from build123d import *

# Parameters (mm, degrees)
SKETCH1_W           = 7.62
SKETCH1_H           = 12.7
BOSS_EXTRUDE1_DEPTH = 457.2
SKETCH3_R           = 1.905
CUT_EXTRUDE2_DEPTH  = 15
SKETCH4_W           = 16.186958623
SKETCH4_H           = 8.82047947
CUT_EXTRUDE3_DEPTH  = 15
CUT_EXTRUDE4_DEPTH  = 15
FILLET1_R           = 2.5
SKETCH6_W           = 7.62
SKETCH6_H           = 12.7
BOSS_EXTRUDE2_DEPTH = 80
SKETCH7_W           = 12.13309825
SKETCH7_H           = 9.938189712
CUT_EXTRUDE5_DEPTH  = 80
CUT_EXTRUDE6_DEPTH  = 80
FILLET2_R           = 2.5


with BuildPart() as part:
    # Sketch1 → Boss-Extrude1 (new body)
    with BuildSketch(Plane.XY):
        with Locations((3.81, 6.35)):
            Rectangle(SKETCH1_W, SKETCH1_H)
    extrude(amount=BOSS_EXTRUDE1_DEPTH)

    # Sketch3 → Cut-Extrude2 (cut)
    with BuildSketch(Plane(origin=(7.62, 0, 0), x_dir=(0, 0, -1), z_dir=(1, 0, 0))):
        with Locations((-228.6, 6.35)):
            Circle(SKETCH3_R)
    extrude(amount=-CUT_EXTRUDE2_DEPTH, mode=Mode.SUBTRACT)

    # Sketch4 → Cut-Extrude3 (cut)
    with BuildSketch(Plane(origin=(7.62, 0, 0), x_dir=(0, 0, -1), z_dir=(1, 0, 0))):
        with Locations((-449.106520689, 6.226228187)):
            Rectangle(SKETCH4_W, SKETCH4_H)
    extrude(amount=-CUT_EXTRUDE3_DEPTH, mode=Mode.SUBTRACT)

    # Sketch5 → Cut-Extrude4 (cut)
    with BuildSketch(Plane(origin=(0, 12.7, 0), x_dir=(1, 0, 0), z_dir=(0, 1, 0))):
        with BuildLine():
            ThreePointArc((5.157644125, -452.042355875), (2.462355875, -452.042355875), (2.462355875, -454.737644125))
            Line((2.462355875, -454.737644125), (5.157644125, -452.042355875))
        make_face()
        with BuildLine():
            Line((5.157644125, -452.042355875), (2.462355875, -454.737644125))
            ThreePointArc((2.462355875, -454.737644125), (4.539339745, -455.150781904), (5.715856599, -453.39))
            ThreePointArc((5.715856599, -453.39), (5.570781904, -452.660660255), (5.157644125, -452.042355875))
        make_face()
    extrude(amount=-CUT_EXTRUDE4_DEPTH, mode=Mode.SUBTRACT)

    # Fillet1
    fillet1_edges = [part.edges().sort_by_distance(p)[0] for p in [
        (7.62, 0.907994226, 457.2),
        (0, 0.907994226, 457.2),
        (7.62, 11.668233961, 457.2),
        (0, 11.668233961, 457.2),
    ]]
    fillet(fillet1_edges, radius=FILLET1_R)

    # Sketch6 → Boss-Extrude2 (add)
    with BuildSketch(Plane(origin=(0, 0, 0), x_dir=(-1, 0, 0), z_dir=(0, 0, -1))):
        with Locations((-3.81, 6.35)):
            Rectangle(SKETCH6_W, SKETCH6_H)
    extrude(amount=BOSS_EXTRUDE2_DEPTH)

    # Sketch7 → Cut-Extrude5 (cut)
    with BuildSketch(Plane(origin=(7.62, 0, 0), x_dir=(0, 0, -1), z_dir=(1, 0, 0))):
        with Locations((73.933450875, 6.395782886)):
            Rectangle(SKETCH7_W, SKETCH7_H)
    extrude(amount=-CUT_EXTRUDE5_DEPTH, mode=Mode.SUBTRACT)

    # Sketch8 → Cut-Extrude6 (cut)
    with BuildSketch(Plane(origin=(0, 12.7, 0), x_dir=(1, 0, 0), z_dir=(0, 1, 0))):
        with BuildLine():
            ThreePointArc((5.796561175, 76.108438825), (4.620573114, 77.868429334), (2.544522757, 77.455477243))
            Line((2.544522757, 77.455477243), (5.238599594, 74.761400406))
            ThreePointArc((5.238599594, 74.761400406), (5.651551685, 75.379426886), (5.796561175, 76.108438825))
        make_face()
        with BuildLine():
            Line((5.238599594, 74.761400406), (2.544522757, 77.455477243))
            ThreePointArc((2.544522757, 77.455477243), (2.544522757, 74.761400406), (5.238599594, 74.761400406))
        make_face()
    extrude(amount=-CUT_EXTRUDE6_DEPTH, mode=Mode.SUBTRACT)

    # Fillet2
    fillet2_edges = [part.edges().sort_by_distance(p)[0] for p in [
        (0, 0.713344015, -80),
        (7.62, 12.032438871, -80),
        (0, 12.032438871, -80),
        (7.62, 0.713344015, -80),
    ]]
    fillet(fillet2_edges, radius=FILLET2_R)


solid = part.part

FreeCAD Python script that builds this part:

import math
import FreeCAD as App
import Part
import Sketcher
from FreeCAD import Vector
Q = App.Units.Quantity


def edges_at(feature, points):
    """Names of the edges that pass closest to the given points."""
    edges = feature.Shape.Edges
    near = lambda p: min(range(len(edges)), key=lambda i: edges[i].distToShape(Part.Vertex(*p))[0])
    return sorted({f"Edge{near(p) + 1}" for p in points})

doc = App.newDocument("Part")
body = doc.addObject("PartDesign::Body", "Body")

# Sketch on XY plane
sketch1 = body.newObject("Sketcher::SketchObject", "Sketch")
sketch1.AttachmentSupport = (doc.getObject("XY_Plane"), [""])
sketch1.MapMode = "FlatFace"
sketch1.addGeometry([
    Part.LineSegment(Vector(0, 13, 0), Vector(0, 0, 0)),
    Part.LineSegment(Vector(0, 0, 0), Vector(8, 0, 0)),
    Part.LineSegment(Vector(8, 0, 0), Vector(8, 13, 0)),
    Part.LineSegment(Vector(8, 13, 0), Vector(0, 13, 0)),
], False)
sketch1.addConstraint([
    Sketcher.Constraint("Coincident", 0, 2, 1, 1),
    Sketcher.Constraint("Coincident", 1, 2, 2, 1),
    Sketcher.Constraint("Coincident", 2, 2, 3, 1),
    Sketcher.Constraint("Coincident", 3, 2, 0, 1),
    Sketcher.Constraint("Vertical", 0),
    Sketcher.Constraint("Horizontal", 1),
    Sketcher.Constraint("Vertical", 2),
    Sketcher.Constraint("Horizontal", 3),
    Sketcher.Constraint("Coincident", 0, 2, -1, 1),
    Sketcher.Constraint("DistanceX", 1, 1, 1, 2, Q("0.3 in")),
    Sketcher.Constraint("DistanceY", 0, 2, 0, 1, Q("0.5 in")),
])
pad1 = body.newObject("PartDesign::Pad", "Pad")
pad1.Profile = sketch1
pad1.Length = Q("18 in")

# Sketch on YZ plane
sketch2 = body.newObject("Sketcher::SketchObject", "Sketch001")
sketch2.AttachmentSupport = (doc.getObject("YZ_Plane"), [""])
sketch2.MapMode = "FlatFace"
sketch2.AttachmentOffset = App.Placement(Vector(0, 0, 0.3 * 25.4), App.Rotation())
sketch2.addGeometry(Part.Circle(Vector(6.3, 228.6, 0), Vector(0, 0, 1), 1.9), False)
sketch2.addConstraint([
    Sketcher.Constraint("Diameter", 0, Q("0.15 in")),
    Sketcher.Constraint("DistanceY", -1, 1, 0, 3, Q("9 in")),
    Sketcher.Constraint("DistanceX", -1, 1, 0, 3, Q("0.25 in")),
])
pocket1 = body.newObject("PartDesign::Pocket", "Pocket")
pocket1.Profile = sketch2
pocket1.Length = 15

# Sketch on YZ plane
sketch3 = body.newObject("Sketcher::SketchObject", "Sketch002")
sketch3.AttachmentSupport = (doc.getObject("YZ_Plane"), [""])
sketch3.MapMode = "FlatFace"
sketch3.AttachmentOffset = App.Placement(Vector(0, 0, 0.3 * 25.4), App.Rotation())
sketch3.addGeometry([
    Part.LineSegment(Vector(11, 457, 0), Vector(2, 457, 0)),
    Part.LineSegment(Vector(2, 457, 0), Vector(2, 441, 0)),
    Part.LineSegment(Vector(2, 441, 0), Vector(11, 441, 0)),
    Part.LineSegment(Vector(11, 441, 0), Vector(11, 457, 0)),
], False)
sketch3.addConstraint([
    Sketcher.Constraint("Coincident", 0, 2, 1, 1),
    Sketcher.Constraint("Coincident", 1, 2, 2, 1),
    Sketcher.Constraint("Coincident", 2, 2, 3, 1),
    Sketcher.Constraint("Coincident", 3, 2, 0, 1),
    Sketcher.Constraint("Horizontal", 0),
    Sketcher.Constraint("Vertical", 1),
    Sketcher.Constraint("Horizontal", 2),
    Sketcher.Constraint("Vertical", 3),
    Sketcher.Constraint("DistanceY", -1, 1, 0, 2, Q("18 in")),
    Sketcher.Constraint("DistanceX", 0, 2, 0, 1, 8.820479),
    Sketcher.Constraint("DistanceY", 1, 2, 1, 1, 16.186959),
    Sketcher.Constraint("DistanceX", -1, 1, 0, 2, 1.815988),
])
pocket2 = body.newObject("PartDesign::Pocket", "Pocket001")
pocket2.Profile = sketch3
pocket2.Length = 15

# Sketch on XZ plane
sketch4 = body.newObject("Sketcher::SketchObject", "Sketch003")
sketch4.AttachmentSupport = (doc.getObject("XZ_Plane"), [""])
sketch4.MapMode = "FlatFace"
sketch4.AttachmentOffset = App.Placement(Vector(0, 0, -0.5 * 25.4), App.Rotation())
sketch4.addGeometry([
    Part.ArcOfCircle(Part.Circle(Vector(3.8, 453.4, 0), Vector(0, 0, 1), 1.9), math.radians(135), math.radians(315)),
    Part.ArcOfCircle(Part.Circle(Vector(3.8, 453.4, 0), Vector(0, 0, 1), 1.9), math.radians(0), math.radians(135)),
    Part.ArcOfCircle(Part.Circle(Vector(3.8, 453.4, 0), Vector(0, 0, 1), 1.9), math.radians(-45), math.radians(0)),
], False)
sketch4.addConstraint([
    Sketcher.Constraint("Tangent", 0, 1, 1, 2),
    Sketcher.Constraint("Tangent", 1, 1, 2, 2),
    Sketcher.Constraint("Tangent", 2, 1, 0, 2),
    Sketcher.Constraint("Horizontal", 2, 3, 1, 1),
    Sketcher.Constraint("DistanceX", -1, 1, 0, 3, Q("0.15 in")),
    Sketcher.Constraint("DistanceY", -1, 1, 0, 3, Q("17.85 in")),
    Sketcher.Constraint("Radius", 0, 1.905857),
    Sketcher.Constraint("DistanceX", 0, 1, 1, 1, 3.253501),
    Sketcher.Constraint("DistanceX", 0, 1, 2, 1, 2.695288),
])
pocket3 = body.newObject("PartDesign::Pocket", "Pocket002")
pocket3.Profile = sketch4
pocket3.Length = 15
pocket3.Reversed = True
doc.recompute()

fillet = body.newObject("PartDesign::Fillet", "Fillet")
fillet.Base = (pocket3, edges_at(pocket3, [
    (7.62, 0.908, 457.2),
    (0, 0.908, 457.2),
    (7.62, 11.668, 457.2),
    (0, 11.668, 457.2),
]))
fillet.Radius = 2.5

# Sketch on XY plane
sketch5 = body.newObject("Sketcher::SketchObject", "Sketch004")
sketch5.AttachmentSupport = (doc.getObject("XY_Plane"), [""])
sketch5.MapMode = "FlatFace"
sketch5.addGeometry([
    Part.LineSegment(Vector(8, 13, 0), Vector(8, 0, 0)),
    Part.LineSegment(Vector(8, 0, 0), Vector(0, 0, 0)),
    Part.LineSegment(Vector(0, 0, 0), Vector(0, 13, 0)),
    Part.LineSegment(Vector(0, 13, 0), Vector(8, 13, 0)),
], False)
sketch5.addConstraint([
    Sketcher.Constraint("Coincident", 0, 2, 1, 1),
    Sketcher.Constraint("Coincident", 1, 2, 2, 1),
    Sketcher.Constraint("Coincident", 2, 2, 3, 1),
    Sketcher.Constraint("Coincident", 3, 2, 0, 1),
    Sketcher.Constraint("Vertical", 0),
    Sketcher.Constraint("Horizontal", 1),
    Sketcher.Constraint("Vertical", 2),
    Sketcher.Constraint("Horizontal", 3),
    Sketcher.Constraint("Coincident", 1, 2, -1, 1),
    Sketcher.Constraint("DistanceX", 1, 2, 1, 1, Q("0.3 in")),
    Sketcher.Constraint("DistanceY", 0, 2, 0, 1, Q("0.5 in")),
])
pad2 = body.newObject("PartDesign::Pad", "Pad001")
pad2.Profile = sketch5
pad2.Length = 80
pad2.Reversed = True

# Sketch on YZ plane
sketch6 = body.newObject("Sketcher::SketchObject", "Sketch005")
sketch6.AttachmentSupport = (doc.getObject("YZ_Plane"), [""])
sketch6.MapMode = "FlatFace"
sketch6.AttachmentOffset = App.Placement(Vector(0, 0, 0.3 * 25.4), App.Rotation())
sketch6.addGeometry([
    Part.LineSegment(Vector(11, -68, 0), Vector(1, -68, 0)),
    Part.LineSegment(Vector(1, -68, 0), Vector(1, -80, 0)),
    Part.LineSegment(Vector(1, -80, 0), Vector(11, -80, 0)),
    Part.LineSegment(Vector(11, -80, 0), Vector(11, -68, 0)),
], False)
sketch6.addConstraint([
    Sketcher.Constraint("Coincident", 0, 2, 1, 1),
    Sketcher.Constraint("Coincident", 1, 2, 2, 1),
    Sketcher.Constraint("Coincident", 2, 2, 3, 1),
    Sketcher.Constraint("Coincident", 3, 2, 0, 1),
    Sketcher.Constraint("Horizontal", 0),
    Sketcher.Constraint("Vertical", 1),
    Sketcher.Constraint("Horizontal", 2),
    Sketcher.Constraint("Vertical", 3),
    Sketcher.Constraint("DistanceY", 1, 2, 1, 1, 12.133098),
    Sketcher.Constraint("DistanceX", 0, 2, 0, 1, 9.93819),
    Sketcher.Constraint("DistanceY", 0, 2, -1, 1, 67.866902),
    Sketcher.Constraint("DistanceX", -1, 1, 0, 2, 1.426688),
])
pocket4 = body.newObject("PartDesign::Pocket", "Pocket003")
pocket4.Profile = sketch6
pocket4.Length = 80

# Sketch on XZ plane
sketch7 = body.newObject("Sketcher::SketchObject", "Sketch006")
sketch7.AttachmentSupport = (doc.getObject("XZ_Plane"), [""])
sketch7.MapMode = "FlatFace"
sketch7.AttachmentOffset = App.Placement(Vector(0, 0, -0.5 * 25.4), App.Rotation())
sketch7.addGeometry([
    Part.ArcOfCircle(Part.Circle(Vector(3.9, -76.1, 0), Vector(0, 0, 1), 1.9), math.radians(-135), math.radians(0)),
    Part.ArcOfCircle(Part.Circle(Vector(3.9, -76.1, 0), Vector(0, 0, 1), 1.9), math.radians(45), math.radians(225)),
    Part.ArcOfCircle(Part.Circle(Vector(3.9, -76.1, 0), Vector(0, 0, 1), 1.9), math.radians(0), math.radians(45)),
], False)
sketch7.addConstraint([
    Sketcher.Constraint("Tangent", 0, 1, 1, 2),
    Sketcher.Constraint("Tangent", 1, 1, 2, 2),
    Sketcher.Constraint("Tangent", 2, 1, 0, 2),
    Sketcher.Constraint("Horizontal", 1, 3, 2, 1),
    Sketcher.Constraint("Radius", 0, Q("0.075 in")),
    Sketcher.Constraint("DistanceX", -1, 1, 1, 1, 5.2386),
    Sketcher.Constraint("DistanceY", 1, 1, -1, 1, 74.7614),
    Sketcher.Constraint("DistanceX", -1, 1, 0, 3, 3.891561),
    Sketcher.Constraint("DistanceX", 0, 1, 0, 3, 1.347038),
])
pocket5 = body.newObject("PartDesign::Pocket", "Pocket004")
pocket5.Profile = sketch7
pocket5.Length = 80
pocket5.Reversed = True
doc.recompute()

fillet2 = body.newObject("PartDesign::Fillet", "Fillet001")
fillet2.Base = (pocket5, edges_at(pocket5, [
    (0, 0.713, -80),
    (7.62, 12.032, -80),
    (0, 12.032, -80),
    (7.62, 0.713, -80),
]))
fillet2.Radius = 2.5

doc.recompute()
